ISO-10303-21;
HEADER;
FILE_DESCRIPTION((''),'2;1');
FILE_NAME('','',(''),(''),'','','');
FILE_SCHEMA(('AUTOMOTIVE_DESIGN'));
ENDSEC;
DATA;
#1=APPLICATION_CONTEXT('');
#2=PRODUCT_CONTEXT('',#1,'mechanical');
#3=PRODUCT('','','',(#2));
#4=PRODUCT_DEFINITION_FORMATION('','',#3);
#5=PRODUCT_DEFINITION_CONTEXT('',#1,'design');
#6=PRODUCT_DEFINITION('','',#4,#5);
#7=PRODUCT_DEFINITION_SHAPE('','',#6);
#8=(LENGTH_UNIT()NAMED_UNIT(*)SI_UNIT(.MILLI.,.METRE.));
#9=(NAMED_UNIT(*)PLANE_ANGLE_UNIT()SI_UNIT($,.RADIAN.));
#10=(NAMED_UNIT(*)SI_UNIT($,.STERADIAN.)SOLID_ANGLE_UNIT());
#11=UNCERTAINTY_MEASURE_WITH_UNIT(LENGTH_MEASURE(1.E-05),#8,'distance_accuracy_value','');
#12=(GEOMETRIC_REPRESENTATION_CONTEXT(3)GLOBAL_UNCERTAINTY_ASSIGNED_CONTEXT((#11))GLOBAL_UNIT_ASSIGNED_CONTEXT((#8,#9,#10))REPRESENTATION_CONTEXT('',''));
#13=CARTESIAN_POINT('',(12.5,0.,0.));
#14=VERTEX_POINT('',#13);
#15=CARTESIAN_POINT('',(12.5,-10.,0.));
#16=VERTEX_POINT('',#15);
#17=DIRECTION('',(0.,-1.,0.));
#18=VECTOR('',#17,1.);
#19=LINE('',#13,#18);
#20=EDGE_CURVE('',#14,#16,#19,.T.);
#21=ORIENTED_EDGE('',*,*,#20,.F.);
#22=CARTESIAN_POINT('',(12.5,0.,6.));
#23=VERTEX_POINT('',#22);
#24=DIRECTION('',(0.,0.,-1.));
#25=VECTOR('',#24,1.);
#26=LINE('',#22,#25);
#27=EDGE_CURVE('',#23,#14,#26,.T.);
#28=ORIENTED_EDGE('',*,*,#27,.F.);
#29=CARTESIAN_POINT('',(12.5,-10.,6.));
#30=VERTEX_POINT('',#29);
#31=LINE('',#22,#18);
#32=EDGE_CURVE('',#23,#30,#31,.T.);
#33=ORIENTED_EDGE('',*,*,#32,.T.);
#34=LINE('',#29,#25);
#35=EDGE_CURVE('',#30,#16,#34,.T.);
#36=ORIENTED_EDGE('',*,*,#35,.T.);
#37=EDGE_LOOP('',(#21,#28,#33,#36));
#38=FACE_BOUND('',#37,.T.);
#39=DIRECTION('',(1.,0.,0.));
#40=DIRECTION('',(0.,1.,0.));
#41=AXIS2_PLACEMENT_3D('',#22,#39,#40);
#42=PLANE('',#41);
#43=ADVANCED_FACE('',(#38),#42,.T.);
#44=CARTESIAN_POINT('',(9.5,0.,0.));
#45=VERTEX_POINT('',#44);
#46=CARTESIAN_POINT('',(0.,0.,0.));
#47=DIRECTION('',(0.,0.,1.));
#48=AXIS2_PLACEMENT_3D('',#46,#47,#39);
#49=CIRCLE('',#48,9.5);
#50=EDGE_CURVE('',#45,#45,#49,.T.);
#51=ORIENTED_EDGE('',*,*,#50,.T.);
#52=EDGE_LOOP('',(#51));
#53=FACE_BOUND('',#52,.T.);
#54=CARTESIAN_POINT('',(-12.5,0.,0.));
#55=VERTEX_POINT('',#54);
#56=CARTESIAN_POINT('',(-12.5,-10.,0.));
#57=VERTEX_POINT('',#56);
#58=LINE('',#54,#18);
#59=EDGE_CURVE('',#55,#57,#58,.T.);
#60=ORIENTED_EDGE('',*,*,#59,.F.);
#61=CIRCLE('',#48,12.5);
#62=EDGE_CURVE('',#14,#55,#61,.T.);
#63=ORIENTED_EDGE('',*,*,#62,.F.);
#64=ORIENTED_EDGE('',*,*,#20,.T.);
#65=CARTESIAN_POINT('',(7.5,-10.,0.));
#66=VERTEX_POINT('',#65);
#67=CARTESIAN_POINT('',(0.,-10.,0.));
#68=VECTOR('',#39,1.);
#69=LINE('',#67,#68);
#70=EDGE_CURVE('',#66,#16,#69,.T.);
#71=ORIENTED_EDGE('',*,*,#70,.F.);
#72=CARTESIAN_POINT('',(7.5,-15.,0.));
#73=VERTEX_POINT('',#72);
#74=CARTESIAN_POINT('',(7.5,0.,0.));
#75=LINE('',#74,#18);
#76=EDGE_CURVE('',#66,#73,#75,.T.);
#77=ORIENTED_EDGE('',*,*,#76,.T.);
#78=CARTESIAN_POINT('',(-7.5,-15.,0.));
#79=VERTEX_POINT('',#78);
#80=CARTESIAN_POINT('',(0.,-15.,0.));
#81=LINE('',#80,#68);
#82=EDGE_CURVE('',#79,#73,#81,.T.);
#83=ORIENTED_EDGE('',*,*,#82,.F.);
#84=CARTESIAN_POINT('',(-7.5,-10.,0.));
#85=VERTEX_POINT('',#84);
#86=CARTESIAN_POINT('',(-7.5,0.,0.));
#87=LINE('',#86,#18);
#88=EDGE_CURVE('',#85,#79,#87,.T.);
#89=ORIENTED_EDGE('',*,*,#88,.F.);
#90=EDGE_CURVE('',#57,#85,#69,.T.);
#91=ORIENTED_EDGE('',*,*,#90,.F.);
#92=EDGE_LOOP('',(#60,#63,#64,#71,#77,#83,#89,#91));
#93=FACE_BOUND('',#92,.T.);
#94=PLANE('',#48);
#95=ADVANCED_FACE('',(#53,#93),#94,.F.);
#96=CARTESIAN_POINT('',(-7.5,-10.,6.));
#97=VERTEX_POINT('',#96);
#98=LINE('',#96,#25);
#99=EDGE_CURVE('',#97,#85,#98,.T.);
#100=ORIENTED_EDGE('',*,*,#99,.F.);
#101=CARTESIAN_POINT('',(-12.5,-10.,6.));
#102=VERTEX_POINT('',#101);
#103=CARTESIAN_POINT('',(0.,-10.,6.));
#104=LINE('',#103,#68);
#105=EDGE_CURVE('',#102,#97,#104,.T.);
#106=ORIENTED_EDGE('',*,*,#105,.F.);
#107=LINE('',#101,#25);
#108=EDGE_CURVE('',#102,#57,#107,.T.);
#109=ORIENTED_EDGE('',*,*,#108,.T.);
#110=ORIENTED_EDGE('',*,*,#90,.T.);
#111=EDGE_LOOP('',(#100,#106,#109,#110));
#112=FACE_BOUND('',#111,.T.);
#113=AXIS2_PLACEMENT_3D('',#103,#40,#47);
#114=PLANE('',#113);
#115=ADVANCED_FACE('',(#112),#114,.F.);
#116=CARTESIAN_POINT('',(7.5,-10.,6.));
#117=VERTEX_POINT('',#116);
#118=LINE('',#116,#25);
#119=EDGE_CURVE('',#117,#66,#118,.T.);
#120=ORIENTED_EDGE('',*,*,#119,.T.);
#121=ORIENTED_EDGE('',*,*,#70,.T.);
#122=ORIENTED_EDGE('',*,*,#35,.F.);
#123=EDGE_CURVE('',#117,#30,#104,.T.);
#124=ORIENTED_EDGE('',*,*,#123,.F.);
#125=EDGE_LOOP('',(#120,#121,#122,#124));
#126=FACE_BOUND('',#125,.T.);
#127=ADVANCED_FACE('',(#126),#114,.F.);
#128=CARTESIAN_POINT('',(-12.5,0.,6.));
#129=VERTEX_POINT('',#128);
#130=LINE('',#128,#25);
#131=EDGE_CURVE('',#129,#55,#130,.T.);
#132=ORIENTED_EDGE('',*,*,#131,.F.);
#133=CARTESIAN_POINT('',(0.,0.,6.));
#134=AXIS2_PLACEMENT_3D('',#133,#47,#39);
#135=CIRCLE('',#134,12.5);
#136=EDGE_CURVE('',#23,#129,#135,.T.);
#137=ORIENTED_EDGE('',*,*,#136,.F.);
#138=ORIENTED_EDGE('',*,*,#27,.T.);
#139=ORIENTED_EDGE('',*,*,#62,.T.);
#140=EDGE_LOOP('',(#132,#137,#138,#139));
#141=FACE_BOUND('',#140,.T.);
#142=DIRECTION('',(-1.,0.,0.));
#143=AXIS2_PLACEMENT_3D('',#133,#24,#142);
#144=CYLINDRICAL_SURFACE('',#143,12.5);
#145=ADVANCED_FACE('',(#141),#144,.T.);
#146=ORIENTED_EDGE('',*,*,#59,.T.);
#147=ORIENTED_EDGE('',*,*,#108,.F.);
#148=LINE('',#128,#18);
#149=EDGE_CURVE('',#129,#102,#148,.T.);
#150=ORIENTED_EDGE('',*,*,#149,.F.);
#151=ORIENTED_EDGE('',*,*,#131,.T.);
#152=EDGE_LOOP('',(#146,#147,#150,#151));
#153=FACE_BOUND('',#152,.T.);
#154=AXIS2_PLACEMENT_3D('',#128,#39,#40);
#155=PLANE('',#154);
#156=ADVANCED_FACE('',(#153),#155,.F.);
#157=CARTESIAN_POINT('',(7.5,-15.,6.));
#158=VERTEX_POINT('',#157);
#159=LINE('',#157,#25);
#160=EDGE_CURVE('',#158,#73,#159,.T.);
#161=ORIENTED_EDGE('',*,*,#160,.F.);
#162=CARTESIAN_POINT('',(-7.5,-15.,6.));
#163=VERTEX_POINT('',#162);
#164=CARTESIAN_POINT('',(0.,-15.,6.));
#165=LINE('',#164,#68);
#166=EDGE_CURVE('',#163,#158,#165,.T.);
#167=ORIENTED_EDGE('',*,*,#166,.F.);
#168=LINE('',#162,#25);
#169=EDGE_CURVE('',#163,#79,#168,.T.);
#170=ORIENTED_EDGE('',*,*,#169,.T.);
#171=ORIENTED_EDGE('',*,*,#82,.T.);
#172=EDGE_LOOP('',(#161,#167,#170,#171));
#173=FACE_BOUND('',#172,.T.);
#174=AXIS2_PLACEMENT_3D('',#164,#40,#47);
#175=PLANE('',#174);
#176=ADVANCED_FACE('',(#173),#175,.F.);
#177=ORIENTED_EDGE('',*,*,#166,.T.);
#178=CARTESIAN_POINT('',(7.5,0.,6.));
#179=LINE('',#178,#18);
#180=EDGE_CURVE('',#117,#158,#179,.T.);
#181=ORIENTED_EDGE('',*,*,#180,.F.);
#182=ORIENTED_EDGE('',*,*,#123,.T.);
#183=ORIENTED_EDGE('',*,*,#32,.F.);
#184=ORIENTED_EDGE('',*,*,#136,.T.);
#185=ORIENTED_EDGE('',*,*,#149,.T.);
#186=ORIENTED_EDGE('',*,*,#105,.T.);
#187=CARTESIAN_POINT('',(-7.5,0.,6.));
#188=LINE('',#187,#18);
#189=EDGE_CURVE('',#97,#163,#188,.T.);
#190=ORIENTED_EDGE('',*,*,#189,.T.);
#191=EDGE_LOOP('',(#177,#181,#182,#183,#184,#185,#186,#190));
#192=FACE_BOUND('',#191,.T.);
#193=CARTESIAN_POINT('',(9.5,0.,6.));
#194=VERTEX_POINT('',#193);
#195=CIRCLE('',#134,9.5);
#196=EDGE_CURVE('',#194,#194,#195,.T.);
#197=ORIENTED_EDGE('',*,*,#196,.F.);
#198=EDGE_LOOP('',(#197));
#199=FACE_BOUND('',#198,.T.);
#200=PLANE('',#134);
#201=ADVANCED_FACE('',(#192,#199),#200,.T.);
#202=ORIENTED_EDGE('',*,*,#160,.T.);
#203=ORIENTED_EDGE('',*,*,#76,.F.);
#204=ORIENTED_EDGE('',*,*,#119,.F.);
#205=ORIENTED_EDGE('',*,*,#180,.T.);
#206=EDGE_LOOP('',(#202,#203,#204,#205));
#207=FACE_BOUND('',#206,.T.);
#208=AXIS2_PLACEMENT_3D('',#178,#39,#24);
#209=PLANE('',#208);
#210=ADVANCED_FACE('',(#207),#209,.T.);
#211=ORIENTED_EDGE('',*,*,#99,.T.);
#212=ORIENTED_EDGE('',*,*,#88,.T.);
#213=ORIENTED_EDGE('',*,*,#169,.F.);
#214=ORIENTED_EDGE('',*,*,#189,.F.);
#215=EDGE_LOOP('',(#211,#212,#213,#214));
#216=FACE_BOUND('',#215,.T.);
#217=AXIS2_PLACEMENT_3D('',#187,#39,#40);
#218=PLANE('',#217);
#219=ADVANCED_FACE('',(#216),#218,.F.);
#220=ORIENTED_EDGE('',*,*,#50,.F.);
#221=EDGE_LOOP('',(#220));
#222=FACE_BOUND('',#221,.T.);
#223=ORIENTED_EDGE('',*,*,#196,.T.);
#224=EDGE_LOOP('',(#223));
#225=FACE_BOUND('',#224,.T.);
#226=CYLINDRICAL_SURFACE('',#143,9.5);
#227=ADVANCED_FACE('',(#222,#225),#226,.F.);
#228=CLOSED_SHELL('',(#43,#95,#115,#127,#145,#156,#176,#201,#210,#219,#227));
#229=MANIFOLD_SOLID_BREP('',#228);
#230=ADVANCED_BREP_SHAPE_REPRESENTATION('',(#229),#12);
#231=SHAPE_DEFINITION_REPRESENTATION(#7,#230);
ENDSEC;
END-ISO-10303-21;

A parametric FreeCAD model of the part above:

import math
import FreeCAD as App
import Part
import Sketcher
from FreeCAD import Vector

doc = App.newDocument("Part")
params = doc.addObject("Spreadsheet::Sheet", "Params")
for row, (alias, value) in enumerate([
    ("sketch1_diameter", "19 mm"),
    ("sketch1_radius", "12.5 mm"),
    ("sketch1_width", "5 mm"),
    ("sketch1_height", "10 mm"),
    ("pad1_length", "6 mm"),
], start=1):
    params.set(f"A{row}", alias)
    params.set(f"B{row}", "=" + value)
    params.setAlias(f"B{row}", alias)

body = doc.addObject("PartDesign::Body", "Body")

# Sketch on XY plane
sketch1 = doc.addObject("Sketcher::SketchObject", "Sketch")
body.addObject(sketch1)
sketch1.AttachmentSupport = (doc.XY_Plane, [""])
sketch1.MapMode = "FlatFace"
sketch1.addGeometry([
    Part.LineSegment(Vector(-12, 0, 0), Vector(-12, -10, 0)),  # 0
    Part.LineSegment(Vector(-12, -10, 0), Vector(-8, -10, 0)),  # 1
    Part.LineSegment(Vector(-8, -10, 0), Vector(-8, -15, 0)),  # 2
    Part.LineSegment(Vector(-8, -15, 0), Vector(8, -15, 0)),  # 3
    Part.LineSegment(Vector(8, -15, 0), Vector(8, -10, 0)),  # 4
    Part.LineSegment(Vector(8, -10, 0), Vector(12, -10, 0)),  # 5
    Part.LineSegment(Vector(12, -10, 0), Vector(12, 0, 0)),  # 6
    Part.ArcOfCircle(Part.Circle(Vector(0, 0, 0), Vector(0, 0, 1), 12), math.radians(0), math.radians(180)),  # 7
    Part.Circle(Vector(0, 0, 0), Vector(0, 0, 1), 10),  # 8
], False)
sketch1.addConstraint([
    Sketcher.Constraint("Coincident", 0, 2, 1, 1),
    Sketcher.Constraint("Coincident", 1, 2, 2, 1),
    Sketcher.Constraint("Coincident", 2, 2, 3, 1),
    Sketcher.Constraint("Coincident", 3, 2, 4, 1),
    Sketcher.Constraint("Coincident", 4, 2, 5, 1),
    Sketcher.Constraint("Coincident", 5, 2, 6, 1),
    Sketcher.Constraint("Tangent", 6, 2, 7, 1),
    Sketcher.Constraint("Tangent", 7, 2, 0, 1),
    Sketcher.Constraint("Vertical", 0),
    Sketcher.Constraint("Horizontal", 1),
    Sketcher.Constraint("Vertical", 2),
    Sketcher.Constraint("Horizontal", 3),
    Sketcher.Constraint("Vertical", 4),
    Sketcher.Constraint("Horizontal", 5),
    Sketcher.Constraint("Vertical", 6),
    Sketcher.Constraint("Coincident", 7, 3, -1, 1),
    Sketcher.Constraint("Coincident", 8, 3, -1, 1),
    Sketcher.Constraint("Symmetric", 1, 2, 4, 2, -2),
    Sketcher.Constraint("Equal", 5, 2),
    Sketcher.Constraint("Diameter", 8, 19.0),
    Sketcher.Constraint("Radius", 7, 12.5),
    Sketcher.Constraint("DistanceX", 1, 1, 1, 2, 5.0),
    Sketcher.Constraint("DistanceY", 0, 2, 0, 1, 10.0),
])
sketch1.setExpression("Constraints[19]", "Params.sketch1_diameter")
sketch1.setExpression("Constraints[20]", "Params.sketch1_radius")
sketch1.setExpression("Constraints[21]", "Params.sketch1_width")
sketch1.setExpression("Constraints[22]", "Params.sketch1_height")
pad1 = doc.addObject("PartDesign::Pad", "Pad")
body.addObject(pad1)
pad1.Profile = sketch1
pad1.setExpression("Length", "Params.pad1_length")

doc.recompute()
